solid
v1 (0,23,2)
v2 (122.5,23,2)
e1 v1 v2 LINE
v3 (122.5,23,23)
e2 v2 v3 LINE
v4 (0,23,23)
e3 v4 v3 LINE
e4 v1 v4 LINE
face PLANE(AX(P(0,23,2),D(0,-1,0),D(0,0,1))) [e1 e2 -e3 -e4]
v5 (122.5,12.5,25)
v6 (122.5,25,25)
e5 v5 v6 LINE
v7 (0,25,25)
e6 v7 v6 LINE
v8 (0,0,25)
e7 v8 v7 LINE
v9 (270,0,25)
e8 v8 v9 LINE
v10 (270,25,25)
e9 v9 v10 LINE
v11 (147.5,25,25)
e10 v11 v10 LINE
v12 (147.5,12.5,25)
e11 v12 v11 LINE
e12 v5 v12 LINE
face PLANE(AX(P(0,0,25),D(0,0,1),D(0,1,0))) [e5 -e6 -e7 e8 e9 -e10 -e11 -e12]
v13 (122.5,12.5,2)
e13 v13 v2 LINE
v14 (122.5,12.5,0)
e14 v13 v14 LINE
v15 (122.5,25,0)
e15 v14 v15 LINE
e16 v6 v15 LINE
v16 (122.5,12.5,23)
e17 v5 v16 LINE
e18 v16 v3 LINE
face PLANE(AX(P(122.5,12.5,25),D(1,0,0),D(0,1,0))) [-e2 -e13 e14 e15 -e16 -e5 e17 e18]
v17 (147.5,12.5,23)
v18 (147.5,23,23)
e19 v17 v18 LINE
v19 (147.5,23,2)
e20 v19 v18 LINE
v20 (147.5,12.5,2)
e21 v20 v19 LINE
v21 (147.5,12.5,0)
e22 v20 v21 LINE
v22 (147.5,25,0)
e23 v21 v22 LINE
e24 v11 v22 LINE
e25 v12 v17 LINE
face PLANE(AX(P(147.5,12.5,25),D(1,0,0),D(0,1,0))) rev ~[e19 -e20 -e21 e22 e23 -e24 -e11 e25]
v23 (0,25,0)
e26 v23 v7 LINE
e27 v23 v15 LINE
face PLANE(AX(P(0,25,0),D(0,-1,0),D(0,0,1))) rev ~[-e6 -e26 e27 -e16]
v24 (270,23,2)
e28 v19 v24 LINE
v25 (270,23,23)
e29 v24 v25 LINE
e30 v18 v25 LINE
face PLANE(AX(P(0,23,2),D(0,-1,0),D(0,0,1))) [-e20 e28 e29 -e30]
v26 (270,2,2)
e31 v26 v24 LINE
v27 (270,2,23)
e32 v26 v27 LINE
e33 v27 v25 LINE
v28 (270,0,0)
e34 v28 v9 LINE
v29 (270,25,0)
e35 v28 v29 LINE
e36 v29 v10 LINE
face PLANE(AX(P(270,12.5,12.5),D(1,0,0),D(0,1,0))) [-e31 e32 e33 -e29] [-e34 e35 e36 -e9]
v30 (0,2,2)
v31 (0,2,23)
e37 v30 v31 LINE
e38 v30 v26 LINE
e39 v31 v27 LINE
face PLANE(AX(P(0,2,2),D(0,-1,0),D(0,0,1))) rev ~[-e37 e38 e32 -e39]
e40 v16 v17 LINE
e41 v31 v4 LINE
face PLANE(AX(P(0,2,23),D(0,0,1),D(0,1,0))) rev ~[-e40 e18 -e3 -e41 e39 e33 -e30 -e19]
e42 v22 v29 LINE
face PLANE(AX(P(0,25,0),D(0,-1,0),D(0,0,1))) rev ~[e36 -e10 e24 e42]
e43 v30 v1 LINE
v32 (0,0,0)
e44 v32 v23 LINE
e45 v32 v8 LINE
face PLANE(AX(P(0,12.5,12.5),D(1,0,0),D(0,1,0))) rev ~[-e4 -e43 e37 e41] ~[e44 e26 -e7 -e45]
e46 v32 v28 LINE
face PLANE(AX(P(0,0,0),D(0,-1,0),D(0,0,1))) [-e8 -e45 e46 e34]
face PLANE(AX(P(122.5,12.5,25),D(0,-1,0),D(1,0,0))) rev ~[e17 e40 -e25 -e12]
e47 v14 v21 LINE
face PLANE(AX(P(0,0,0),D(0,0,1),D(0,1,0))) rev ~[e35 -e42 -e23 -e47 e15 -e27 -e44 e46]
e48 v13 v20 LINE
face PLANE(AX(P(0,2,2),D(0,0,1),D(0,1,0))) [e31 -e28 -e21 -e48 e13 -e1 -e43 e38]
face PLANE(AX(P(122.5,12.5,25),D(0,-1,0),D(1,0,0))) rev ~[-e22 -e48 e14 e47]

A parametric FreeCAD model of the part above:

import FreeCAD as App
import Part
import Sketcher

doc = App.newDocument("Part")
body = doc.addObject("PartDesign::Body", "Body")

sketch1 = body.newObject("Sketcher::SketchObject", "Sketch")
sketch1.AttachmentSupport = (doc.getObject("YZ_Plane"), [""])
sketch1.MapMode = "FlatFace"
sketch1.addGeometry([
    Part.LineSegment(App.Vector(0, 25, 0), App.Vector(0, 0, 0)),
    Part.LineSegment(App.Vector(0, 0, 0), App.Vector(25, 0, 0)),
    Part.LineSegment(App.Vector(25, 0, 0), App.Vector(25, 25, 0)),
    Part.LineSegment(App.Vector(25, 25, 0), App.Vector(0, 25, 0)),
    Part.LineSegment(App.Vector(23, 2, 0), App.Vector(2, 2, 0)),
    Part.LineSegment(App.Vector(2, 2, 0), App.Vector(2, 23, 0)),
    Part.LineSegment(App.Vector(2, 23, 0), App.Vector(23, 23, 0)),
    Part.LineSegment(App.Vector(23, 23, 0), App.Vector(23, 2, 0)),
], False)
sketch1.addConstraint([
    Sketcher.Constraint("Coincident", 0, 2, 1, 1),
    Sketcher.Constraint("Coincident", 1, 2, 2, 1),
    Sketcher.Constraint("Coincident", 2, 2, 3, 1),
    Sketcher.Constraint("Coincident", 3, 2, 0, 1),
    Sketcher.Constraint("Coincident", 4, 2, 5, 1),
    Sketcher.Constraint("Coincident", 5, 2, 6, 1),
    Sketcher.Constraint("Coincident", 6, 2, 7, 1),
    Sketcher.Constraint("Coincident", 7, 2, 4, 1),
    Sketcher.Constraint("Vertical", 0),
    Sketcher.Constraint("Horizontal", 1),
    Sketcher.Constraint("Vertical", 2),
    Sketcher.Constraint("Horizontal", 3),
    Sketcher.Constraint("Horizontal", 4),
    Sketcher.Constraint("Vertical", 5),
    Sketcher.Constraint("Horizontal", 6),
    Sketcher.Constraint("Vertical", 7),
    Sketcher.Constraint("Coincident", 0, 2, -1, 1),
    Sketcher.Constraint("Equal", 3, 0),
    Sketcher.Constraint("Equal", 6, 5),
    Sketcher.Constraint("DistanceX", 1, 1, 1, 2, 25.0),
    Sketcher.Constraint("DistanceX", 4, 2, 4, 1, 21.0),
    Sketcher.Constraint("DistanceX", -1, 1, 4, 2, 2.0),
    Sketcher.Constraint("DistanceY", -1, 1, 4, 2, 2.0),
])
pad1 = body.newObject("PartDesign::Pad", "Pad")
pad1.Profile = sketch1
pad1.Length = 270

sketch2 = body.newObject("Sketcher::SketchObject", "Sketch001")
sketch2.AttachmentSupport = (doc.getObject("XY_Plane"), [""])
sketch2.MapMode = "FlatFace"
sketch2.AttachmentOffset = App.Placement(App.Vector(0, 0, 25), App.Rotation())
sketch2.addGeometry([
    Part.LineSegment(App.Vector(122, 25, 0), App.Vector(122, 12, 0)),
    Part.LineSegment(App.Vector(122, 12, 0), App.Vector(148, 12, 0)),
    Part.LineSegment(App.Vector(148, 12, 0), App.Vector(148, 25, 0)),
    Part.LineSegment(App.Vector(148, 25, 0), App.Vector(122, 25, 0)),
], False)
sketch2.addConstraint([
    Sketcher.Constraint("Coincident", 0, 2, 1, 1),
    Sketcher.Constraint("Coincident", 1, 2, 2, 1),
    Sketcher.Constraint("Coincident", 2, 2, 3, 1),
    Sketcher.Constraint("Coincident", 3, 2, 0, 1),
    Sketcher.Constraint("Vertical", 0),
    Sketcher.Constraint("Horizontal", 1),
    Sketcher.Constraint("Vertical", 2),
    Sketcher.Constraint("Horizontal", 3),
    Sketcher.Constraint("DistanceX", 1, 1, 1, 2, 25.0),
    Sketcher.Constraint("DistanceY", 0, 2, 0, 1, 12.5),
    Sketcher.Constraint("DistanceY", -1, 1, 2, 2, 25.0),
    Sketcher.Constraint("DistanceX", -1, 1, 0, 2, 122.5),
])
pocket1 = body.newObject("PartDesign::Pocket", "Pocket")
pocket1.Profile = sketch2
pocket1.Type = "ThroughAll"

doc.recompute()
